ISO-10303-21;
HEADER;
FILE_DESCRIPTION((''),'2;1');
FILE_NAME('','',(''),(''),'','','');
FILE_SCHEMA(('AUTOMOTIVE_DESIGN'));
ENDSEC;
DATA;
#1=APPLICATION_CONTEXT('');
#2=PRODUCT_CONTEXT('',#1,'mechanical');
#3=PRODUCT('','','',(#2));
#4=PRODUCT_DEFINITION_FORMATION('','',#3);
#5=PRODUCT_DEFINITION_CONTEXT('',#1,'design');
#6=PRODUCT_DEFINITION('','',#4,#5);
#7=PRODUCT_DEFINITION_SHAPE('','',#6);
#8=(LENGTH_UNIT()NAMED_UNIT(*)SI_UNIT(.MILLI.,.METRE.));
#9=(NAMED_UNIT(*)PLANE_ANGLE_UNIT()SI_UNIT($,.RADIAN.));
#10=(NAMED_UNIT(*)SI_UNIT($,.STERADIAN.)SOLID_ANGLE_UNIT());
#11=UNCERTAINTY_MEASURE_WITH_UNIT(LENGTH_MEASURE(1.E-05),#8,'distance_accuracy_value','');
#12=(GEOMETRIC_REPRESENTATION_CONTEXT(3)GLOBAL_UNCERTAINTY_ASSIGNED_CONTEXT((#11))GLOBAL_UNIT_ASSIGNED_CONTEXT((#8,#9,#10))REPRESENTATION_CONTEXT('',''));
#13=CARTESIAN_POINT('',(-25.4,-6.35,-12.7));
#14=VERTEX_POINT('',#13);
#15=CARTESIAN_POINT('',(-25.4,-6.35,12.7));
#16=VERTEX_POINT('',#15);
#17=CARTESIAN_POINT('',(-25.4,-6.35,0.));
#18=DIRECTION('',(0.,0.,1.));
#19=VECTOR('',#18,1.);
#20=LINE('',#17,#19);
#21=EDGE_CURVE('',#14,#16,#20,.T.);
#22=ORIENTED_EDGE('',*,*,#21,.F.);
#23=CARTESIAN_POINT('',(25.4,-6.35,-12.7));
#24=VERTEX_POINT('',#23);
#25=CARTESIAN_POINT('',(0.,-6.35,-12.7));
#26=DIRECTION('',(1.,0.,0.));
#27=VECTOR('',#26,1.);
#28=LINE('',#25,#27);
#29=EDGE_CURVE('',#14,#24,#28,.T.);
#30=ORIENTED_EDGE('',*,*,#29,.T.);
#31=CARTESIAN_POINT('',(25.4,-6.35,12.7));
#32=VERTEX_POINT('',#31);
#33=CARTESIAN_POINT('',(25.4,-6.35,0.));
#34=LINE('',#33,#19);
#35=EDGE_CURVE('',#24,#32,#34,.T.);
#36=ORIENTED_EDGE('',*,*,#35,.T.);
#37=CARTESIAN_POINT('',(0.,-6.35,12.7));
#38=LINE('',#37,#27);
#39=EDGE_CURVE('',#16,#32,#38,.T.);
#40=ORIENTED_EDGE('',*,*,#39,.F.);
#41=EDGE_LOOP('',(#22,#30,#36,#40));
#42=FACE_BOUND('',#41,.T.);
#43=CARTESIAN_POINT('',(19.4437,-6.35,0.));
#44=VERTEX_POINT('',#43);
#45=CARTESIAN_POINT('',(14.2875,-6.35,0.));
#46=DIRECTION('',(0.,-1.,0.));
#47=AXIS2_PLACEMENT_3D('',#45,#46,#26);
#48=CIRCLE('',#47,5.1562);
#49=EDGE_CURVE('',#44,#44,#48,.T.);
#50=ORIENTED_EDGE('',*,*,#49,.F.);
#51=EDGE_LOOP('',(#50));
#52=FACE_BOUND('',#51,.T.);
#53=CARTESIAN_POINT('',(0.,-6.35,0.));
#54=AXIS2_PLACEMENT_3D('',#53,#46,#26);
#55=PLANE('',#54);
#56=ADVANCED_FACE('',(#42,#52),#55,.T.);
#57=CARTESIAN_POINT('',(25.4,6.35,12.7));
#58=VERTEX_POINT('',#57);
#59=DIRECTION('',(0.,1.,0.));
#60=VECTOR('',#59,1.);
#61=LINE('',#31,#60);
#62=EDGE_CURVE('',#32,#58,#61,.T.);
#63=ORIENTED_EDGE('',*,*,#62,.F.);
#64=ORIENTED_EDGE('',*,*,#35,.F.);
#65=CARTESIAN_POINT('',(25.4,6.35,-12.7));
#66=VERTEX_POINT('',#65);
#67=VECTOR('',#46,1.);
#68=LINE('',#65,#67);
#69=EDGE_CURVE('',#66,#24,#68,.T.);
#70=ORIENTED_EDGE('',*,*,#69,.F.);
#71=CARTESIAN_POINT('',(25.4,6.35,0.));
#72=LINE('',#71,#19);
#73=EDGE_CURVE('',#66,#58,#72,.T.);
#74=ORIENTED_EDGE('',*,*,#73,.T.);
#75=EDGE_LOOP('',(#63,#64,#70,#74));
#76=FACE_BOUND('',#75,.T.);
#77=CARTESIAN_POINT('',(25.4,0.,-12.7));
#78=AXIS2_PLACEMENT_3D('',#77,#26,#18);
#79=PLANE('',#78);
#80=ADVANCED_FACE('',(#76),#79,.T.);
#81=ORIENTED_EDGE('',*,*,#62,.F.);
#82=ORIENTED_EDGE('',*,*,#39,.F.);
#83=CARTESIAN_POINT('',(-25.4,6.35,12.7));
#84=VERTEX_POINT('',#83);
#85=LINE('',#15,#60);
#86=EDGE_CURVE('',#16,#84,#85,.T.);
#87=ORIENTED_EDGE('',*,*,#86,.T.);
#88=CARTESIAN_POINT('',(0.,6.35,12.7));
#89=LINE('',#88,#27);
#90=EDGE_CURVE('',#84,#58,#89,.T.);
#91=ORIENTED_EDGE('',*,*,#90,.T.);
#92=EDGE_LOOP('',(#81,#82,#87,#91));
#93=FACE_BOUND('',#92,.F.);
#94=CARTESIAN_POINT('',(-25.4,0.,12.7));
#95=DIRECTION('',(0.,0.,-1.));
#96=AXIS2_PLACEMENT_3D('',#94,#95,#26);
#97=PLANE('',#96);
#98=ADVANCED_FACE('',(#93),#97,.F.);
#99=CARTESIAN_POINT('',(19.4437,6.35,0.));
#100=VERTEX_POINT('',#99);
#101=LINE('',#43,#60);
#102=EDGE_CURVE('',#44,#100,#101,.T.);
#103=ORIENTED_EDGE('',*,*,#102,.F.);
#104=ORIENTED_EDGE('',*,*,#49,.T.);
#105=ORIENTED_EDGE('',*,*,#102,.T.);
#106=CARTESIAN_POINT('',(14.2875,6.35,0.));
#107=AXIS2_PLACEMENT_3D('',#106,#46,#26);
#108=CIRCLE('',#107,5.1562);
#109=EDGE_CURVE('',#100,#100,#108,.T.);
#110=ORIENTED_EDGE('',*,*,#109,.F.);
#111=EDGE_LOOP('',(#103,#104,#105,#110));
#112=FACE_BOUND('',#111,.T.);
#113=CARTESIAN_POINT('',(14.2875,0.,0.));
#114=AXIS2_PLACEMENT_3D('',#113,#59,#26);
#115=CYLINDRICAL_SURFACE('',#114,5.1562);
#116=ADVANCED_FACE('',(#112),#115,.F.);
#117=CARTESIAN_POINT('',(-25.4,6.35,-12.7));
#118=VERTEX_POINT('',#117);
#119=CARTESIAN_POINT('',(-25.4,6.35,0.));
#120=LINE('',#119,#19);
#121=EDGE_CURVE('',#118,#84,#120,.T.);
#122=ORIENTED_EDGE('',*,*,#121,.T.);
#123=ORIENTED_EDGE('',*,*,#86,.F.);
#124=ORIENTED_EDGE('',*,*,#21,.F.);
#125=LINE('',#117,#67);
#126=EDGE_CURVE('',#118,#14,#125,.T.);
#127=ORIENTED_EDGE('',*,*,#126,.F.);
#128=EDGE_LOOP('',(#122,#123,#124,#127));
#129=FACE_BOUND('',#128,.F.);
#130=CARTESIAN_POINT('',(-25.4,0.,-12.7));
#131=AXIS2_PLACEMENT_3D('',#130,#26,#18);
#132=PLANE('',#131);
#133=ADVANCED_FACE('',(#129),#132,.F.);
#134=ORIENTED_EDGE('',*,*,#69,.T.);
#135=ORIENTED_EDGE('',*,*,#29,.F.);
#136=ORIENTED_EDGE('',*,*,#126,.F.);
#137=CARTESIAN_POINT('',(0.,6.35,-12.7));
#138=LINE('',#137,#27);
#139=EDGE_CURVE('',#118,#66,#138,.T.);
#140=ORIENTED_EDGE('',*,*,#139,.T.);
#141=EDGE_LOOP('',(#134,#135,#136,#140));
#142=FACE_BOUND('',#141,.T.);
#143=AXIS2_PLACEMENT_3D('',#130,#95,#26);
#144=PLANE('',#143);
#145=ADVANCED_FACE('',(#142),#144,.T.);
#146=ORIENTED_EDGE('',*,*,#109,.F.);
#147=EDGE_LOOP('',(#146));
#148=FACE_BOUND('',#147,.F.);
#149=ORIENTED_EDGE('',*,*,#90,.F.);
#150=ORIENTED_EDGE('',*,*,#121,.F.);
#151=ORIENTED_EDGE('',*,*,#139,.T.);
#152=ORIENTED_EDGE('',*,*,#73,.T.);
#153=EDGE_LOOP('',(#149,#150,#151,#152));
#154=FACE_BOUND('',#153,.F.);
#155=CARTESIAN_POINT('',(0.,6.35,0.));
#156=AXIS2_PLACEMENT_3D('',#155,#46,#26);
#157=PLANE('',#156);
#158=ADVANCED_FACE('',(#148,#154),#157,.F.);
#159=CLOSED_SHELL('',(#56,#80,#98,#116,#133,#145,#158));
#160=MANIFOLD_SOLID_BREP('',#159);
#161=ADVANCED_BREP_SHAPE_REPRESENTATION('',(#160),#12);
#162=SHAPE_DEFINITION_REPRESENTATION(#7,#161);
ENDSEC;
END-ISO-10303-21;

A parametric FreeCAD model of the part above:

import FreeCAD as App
import Part
import Sketcher
from FreeCAD import Vector
Q = App.Units.Quantity


def add_polygon(sketch, points):
    """Adds a closed chain of lines whose ends are joined by coincident constraints."""
    first, n = sketch.GeometryCount, len(points)
    for a, b in zip(points, points[1:] + points[:1]):
        sketch.addGeometry(Part.LineSegment(App.Vector(*a, 0), App.Vector(*b, 0)), False)
    for i in range(n):
        sketch.addConstraint(Sketcher.Constraint("Coincident", first + i, 2, first + (i + 1) % n, 1))

doc = App.newDocument("Part")
body = doc.addObject("PartDesign::Body", "Body")

# Sketch on XZ plane
sketch1 = body.newObject("Sketcher::SketchObject", "Sketch")
sketch1.AttachmentSupport = (doc.getObject("XZ_Plane"), [""])
sketch1.MapMode = "FlatFace"
add_polygon(sketch1, [(-25, 13), (-25, -13), (25, -13), (25, 13)])  # lines 0-3
sketch1.addGeometry(Part.Circle(Vector(14, 0, 0), Vector(0, 0, 1), 5), False)  # 4
sketch1.addConstraint(Sketcher.Constraint("Vertical", 0))
sketch1.addConstraint(Sketcher.Constraint("Horizontal", 1))
sketch1.addConstraint(Sketcher.Constraint("Vertical", 2))
sketch1.addConstraint(Sketcher.Constraint("Horizontal", 3))
sketch1.addConstraint(Sketcher.Constraint("Symmetric", 0, 2, 2, 2, -1, 1))
sketch1.addConstraint(Sketcher.Constraint("PointOnObject", 4, 3, -1))
sketch1.addConstraint(Sketcher.Constraint("DistanceX", 1, 1, 1, 2, Q("2 in")))
sketch1.addConstraint(Sketcher.Constraint("DistanceY", 0, 2, 0, 1, Q("1 in")))
sketch1.addConstraint(Sketcher.Constraint("Diameter", 4, Q("0.406 in")))
sketch1.addConstraint(Sketcher.Constraint("DistanceX", -1, 1, 4, 3, Q("0.5625 in")))
pad1 = body.newObject("PartDesign::Pad", "Pad")
pad1.Profile = sketch1
pad1.Length = Q("0.5 in")
pad1.Midplane = True

doc.recompute()
